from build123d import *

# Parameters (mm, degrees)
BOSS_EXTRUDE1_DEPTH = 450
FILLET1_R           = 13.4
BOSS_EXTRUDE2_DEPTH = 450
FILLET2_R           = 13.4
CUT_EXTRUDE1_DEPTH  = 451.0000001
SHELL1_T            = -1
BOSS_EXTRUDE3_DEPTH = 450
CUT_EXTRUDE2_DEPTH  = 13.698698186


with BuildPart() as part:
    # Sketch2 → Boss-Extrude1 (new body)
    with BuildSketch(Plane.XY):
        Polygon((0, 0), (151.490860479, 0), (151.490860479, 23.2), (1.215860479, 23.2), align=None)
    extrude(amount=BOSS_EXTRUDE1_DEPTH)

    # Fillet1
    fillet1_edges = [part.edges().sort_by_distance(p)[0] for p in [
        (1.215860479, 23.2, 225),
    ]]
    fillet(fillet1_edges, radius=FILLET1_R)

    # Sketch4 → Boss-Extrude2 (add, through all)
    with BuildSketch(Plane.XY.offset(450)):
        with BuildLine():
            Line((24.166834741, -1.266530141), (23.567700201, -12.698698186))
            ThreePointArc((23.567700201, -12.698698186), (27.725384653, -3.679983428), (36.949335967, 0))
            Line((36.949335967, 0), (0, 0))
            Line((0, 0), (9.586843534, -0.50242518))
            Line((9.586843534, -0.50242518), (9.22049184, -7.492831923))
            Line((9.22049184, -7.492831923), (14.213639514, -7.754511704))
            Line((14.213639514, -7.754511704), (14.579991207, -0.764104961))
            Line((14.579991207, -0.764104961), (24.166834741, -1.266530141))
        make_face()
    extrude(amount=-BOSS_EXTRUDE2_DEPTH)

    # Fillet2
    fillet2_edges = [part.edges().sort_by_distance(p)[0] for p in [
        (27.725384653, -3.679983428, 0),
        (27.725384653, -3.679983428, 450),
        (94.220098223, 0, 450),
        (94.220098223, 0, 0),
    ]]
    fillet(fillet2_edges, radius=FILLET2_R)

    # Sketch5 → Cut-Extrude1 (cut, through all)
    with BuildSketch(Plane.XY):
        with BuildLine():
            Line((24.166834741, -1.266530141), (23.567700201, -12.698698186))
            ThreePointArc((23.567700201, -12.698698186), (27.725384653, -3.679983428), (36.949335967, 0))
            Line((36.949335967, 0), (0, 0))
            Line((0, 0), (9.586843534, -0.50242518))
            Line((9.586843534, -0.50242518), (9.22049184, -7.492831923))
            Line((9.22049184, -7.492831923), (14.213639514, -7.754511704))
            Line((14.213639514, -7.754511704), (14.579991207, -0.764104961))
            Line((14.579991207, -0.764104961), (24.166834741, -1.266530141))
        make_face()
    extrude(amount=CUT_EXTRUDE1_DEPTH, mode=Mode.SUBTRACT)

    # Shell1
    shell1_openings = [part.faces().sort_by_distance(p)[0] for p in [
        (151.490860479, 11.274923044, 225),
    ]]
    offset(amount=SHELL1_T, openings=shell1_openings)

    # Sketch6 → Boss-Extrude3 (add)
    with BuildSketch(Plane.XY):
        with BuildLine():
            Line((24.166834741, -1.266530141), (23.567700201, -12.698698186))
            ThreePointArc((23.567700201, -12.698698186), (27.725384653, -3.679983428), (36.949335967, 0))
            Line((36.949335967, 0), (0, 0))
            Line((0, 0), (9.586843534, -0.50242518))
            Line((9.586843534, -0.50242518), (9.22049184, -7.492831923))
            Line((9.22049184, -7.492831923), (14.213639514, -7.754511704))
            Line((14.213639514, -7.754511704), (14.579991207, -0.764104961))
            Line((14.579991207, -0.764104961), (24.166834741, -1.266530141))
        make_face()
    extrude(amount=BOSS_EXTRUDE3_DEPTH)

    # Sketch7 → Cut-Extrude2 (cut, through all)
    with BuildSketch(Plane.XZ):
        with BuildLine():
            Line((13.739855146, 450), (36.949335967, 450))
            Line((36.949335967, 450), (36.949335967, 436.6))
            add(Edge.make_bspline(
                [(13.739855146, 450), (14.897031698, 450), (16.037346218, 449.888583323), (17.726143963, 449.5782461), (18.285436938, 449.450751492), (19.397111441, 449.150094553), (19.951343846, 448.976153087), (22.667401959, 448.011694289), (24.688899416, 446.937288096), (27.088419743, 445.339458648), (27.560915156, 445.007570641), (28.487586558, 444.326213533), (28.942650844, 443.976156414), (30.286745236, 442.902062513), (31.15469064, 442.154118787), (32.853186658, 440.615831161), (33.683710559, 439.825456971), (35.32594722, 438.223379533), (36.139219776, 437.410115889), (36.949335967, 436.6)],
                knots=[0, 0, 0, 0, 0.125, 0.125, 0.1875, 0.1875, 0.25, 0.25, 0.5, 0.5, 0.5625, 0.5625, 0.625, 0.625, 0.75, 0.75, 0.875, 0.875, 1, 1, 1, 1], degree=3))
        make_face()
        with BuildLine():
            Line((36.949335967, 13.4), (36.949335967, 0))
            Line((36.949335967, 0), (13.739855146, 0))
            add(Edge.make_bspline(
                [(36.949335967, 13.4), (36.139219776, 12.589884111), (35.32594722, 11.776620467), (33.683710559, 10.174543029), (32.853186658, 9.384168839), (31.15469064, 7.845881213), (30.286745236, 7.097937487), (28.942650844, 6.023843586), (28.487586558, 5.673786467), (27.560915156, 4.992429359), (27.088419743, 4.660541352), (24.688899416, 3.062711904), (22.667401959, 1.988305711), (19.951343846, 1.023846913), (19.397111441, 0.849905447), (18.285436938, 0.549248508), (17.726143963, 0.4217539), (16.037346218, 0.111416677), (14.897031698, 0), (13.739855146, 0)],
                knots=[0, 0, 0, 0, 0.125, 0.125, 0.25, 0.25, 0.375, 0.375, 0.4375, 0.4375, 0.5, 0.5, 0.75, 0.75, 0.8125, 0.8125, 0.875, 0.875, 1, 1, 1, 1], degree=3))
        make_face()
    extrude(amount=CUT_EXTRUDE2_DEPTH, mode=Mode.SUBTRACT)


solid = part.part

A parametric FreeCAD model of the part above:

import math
import FreeCAD as App
import Part
import Sketcher
from FreeCAD import Vector
Q = App.Units.Quantity


def edges_at(feature, points):
    """Names of the edges that pass closest to the given points."""
    edges = feature.Shape.Edges
    near = lambda p: min(range(len(edges)), key=lambda i: edges[i].distToShape(Part.Vertex(*p))[0])
    return sorted({f"Edge{near(p) + 1}" for p in points})


def faces_at(feature, points):
    """Names of the faces that lie closest to the given points."""
    faces = feature.Shape.Faces
    near = lambda p: min(range(len(faces)), key=lambda i: faces[i].distToShape(Part.Vertex(*p))[0])
    return sorted({f"Face{near(p) + 1}" for p in points})

doc = App.newDocument("Part")
body = doc.addObject("PartDesign::Body", "Body")

# Sketch on XY plane
sketch1 = doc.addObject("Sketcher::SketchObject", "Sketch")
body.addObject(sketch1)
sketch1.AttachmentSupport = (doc.XY_Plane, [""])
sketch1.MapMode = "FlatFace"
sketch1.addGeometry([
    Part.LineSegment(Vector(0, 0, 0), Vector(151, 0, 0)),
    Part.LineSegment(Vector(151, 0, 0), Vector(151, 23, 0)),
    Part.LineSegment(Vector(151, 23, 0), Vector(1, 23, 0)),
    Part.LineSegment(Vector(1, 23, 0), Vector(0, 0, 0)),
], False)
sketch1.addConstraint([
    Sketcher.Constraint("Coincident", 0, 2, 1, 1),
    Sketcher.Constraint("Coincident", 1, 2, 2, 1),
    Sketcher.Constraint("Coincident", 2, 2, 3, 1),
    Sketcher.Constraint("Coincident", 3, 2, 0, 1),
    Sketcher.Constraint("Horizontal", 0),
    Sketcher.Constraint("Vertical", 1),
    Sketcher.Constraint("Horizontal", 2),
    Sketcher.Constraint("Coincident", 3, 2, -1, 1),
    Sketcher.Constraint("Angle", 3, Q("-93 deg")),
    Sketcher.Constraint("DistanceY", 1, 1, 1, 2, 23.2),
    Sketcher.Constraint("DistanceX", 2, 2, 2, 1, 150.275),
])
pad1 = doc.addObject("PartDesign::Pad", "Pad")
body.addObject(pad1)
pad1.Profile = sketch1
pad1.Length = 450
doc.recompute()

fillet = doc.addObject("PartDesign::Fillet", "Fillet")
body.addObject(fillet)
fillet.Base = (pad1, edges_at(pad1, [(1.216, 23.2, 225)]))
fillet.Radius = 13.4

# Sketch on XY plane
sketch2 = doc.addObject("Sketcher::SketchObject", "Sketch001")
body.addObject(sketch2)
sketch2.AttachmentSupport = (doc.XY_Plane, [""])
sketch2.MapMode = "FlatFace"
sketch2.AttachmentOffset = App.Placement(Vector(0, 0, 450), App.Rotation())
sketch2.addGeometry([
    Part.LineSegment(Vector(24, -1, 0), Vector(24, -13, 0)),  # 0
    Part.ArcOfCircle(Part.Circle(Vector(37, -13, 0), Vector(0, 0, 1), 13), math.radians(90), math.radians(177)),  # 1
    Part.LineSegment(Vector(37, 0, 0), Vector(0, 0, 0)),  # 2
    Part.LineSegment(Vector(0, 0, 0), Vector(10, -1, 0)),  # 3
    Part.LineSegment(Vector(10, -1, 0), Vector(9, -7, 0)),  # 4
    Part.LineSegment(Vector(9, -7, 0), Vector(14, -8, 0)),  # 5
    Part.LineSegment(Vector(14, -8, 0), Vector(15, -1, 0)),  # 6
    Part.LineSegment(Vector(15, -1, 0), Vector(24, -1, 0)),  # 7
], False)
sketch2.addConstraint([
    Sketcher.Constraint("Tangent", 0, 2, 1, 2),
    Sketcher.Constraint("Tangent", 1, 1, 2, 1),
    Sketcher.Constraint("Coincident", 2, 2, 3, 1),
    Sketcher.Constraint("Coincident", 3, 2, 4, 1),
    Sketcher.Constraint("Coincident", 4, 2, 5, 1),
    Sketcher.Constraint("Coincident", 5, 2, 6, 1),
    Sketcher.Constraint("Coincident", 6, 2, 7, 1),
    Sketcher.Constraint("Coincident", 7, 2, 0, 1),
    Sketcher.Constraint("Horizontal", 2),
    Sketcher.Constraint("Coincident", 2, 2, -1, 1),
    Sketcher.Constraint("Perpendicular", 0, 3),
    Sketcher.Constraint("Perpendicular", 3, 4),
    Sketcher.Constraint("Perpendicular", 4, 5),
    Sketcher.Constraint("Perpendicular", 5, 6),
    Sketcher.Constraint("Perpendicular", 6, 7),
    Sketcher.Constraint("Equal", 4, 6),
    Sketcher.Constraint("Equal", 3, 7),
    Sketcher.Constraint("Radius", 1, 13.4),
    Sketcher.Constraint("Angle", 0, Q("-93 deg")),
    Sketcher.Constraint("Distance", 4, 7.0),
    Sketcher.Constraint("Distance", 5, 5.0),
    Sketcher.Constraint("Distance", 3, 9.6),
])
pad2 = doc.addObject("PartDesign::Pad", "Pad001")
body.addObject(pad2)
pad2.Profile = sketch2
pad2.Length = 450
pad2.Reversed = True
doc.recompute()

fillet2 = doc.addObject("PartDesign::Fillet", "Fillet001")
body.addObject(fillet2)
fillet2.Base = (pad2, edges_at(pad2, [
    (27.725, -3.68, 0),
    (27.725, -3.68, 450),
    (94.22, 0, 450),
    (94.22, 0, 0),
]))
fillet2.Radius = 13.4

# Sketch on XY plane
sketch3 = doc.addObject("Sketcher::SketchObject", "Sketch002")
body.addObject(sketch3)
sketch3.AttachmentSupport = (doc.XY_Plane, [""])
sketch3.MapMode = "FlatFace"
sketch3.addGeometry([
    Part.LineSegment(Vector(24, -1, 0), Vector(24, -13, 0)),  # 0
    Part.ArcOfCircle(Part.Circle(Vector(37, -13, 0), Vector(0, 0, 1), 13), math.radians(90), math.radians(177)),  # 1
    Part.LineSegment(Vector(37, 0, 0), Vector(0, 0, 0)),  # 2
    Part.LineSegment(Vector(0, 0, 0), Vector(10, -1, 0)),  # 3
    Part.LineSegment(Vector(10, -1, 0), Vector(9, -7, 0)),  # 4
    Part.LineSegment(Vector(9, -7, 0), Vector(14, -8, 0)),  # 5
    Part.LineSegment(Vector(14, -8, 0), Vector(15, -1, 0)),  # 6
    Part.LineSegment(Vector(15, -1, 0), Vector(24, -1, 0)),  # 7
], False)
sketch3.addConstraint([
    Sketcher.Constraint("Tangent", 0, 2, 1, 2),
    Sketcher.Constraint("Tangent", 1, 1, 2, 1),
    Sketcher.Constraint("Coincident", 2, 2, 3, 1),
    Sketcher.Constraint("Coincident", 3, 2, 4, 1),
    Sketcher.Constraint("Coincident", 4, 2, 5, 1),
    Sketcher.Constraint("Coincident", 5, 2, 6, 1),
    Sketcher.Constraint("Coincident", 6, 2, 7, 1),
    Sketcher.Constraint("Coincident", 7, 2, 0, 1),
    Sketcher.Constraint("Horizontal", 2),
    Sketcher.Constraint("Coincident", 2, 2, -1, 1),
    Sketcher.Constraint("Perpendicular", 0, 3),
    Sketcher.Constraint("Perpendicular", 3, 4),
    Sketcher.Constraint("Perpendicular", 4, 5),
    Sketcher.Constraint("Perpendicular", 5, 6),
    Sketcher.Constraint("Perpendicular", 6, 7),
    Sketcher.Constraint("Equal", 4, 6),
    Sketcher.Constraint("Equal", 3, 7),
    Sketcher.Constraint("Radius", 1, 13.4),
    Sketcher.Constraint("Angle", 0, Q("-93 deg")),
    Sketcher.Constraint("Distance", 4, 7.0),
    Sketcher.Constraint("Distance", 5, 5.0),
    Sketcher.Constraint("Distance", 3, 9.6),
])
pocket1 = doc.addObject("PartDesign::Pocket", "Pocket")
body.addObject(pocket1)
pocket1.Profile = sketch3
pocket1.Type = "ThroughAll"
pocket1.Reversed = True
doc.recompute()

thickness = doc.addObject("PartDesign::Thickness", "Thickness")
body.addObject(thickness)
thickness.Base = (pocket1, faces_at(pocket1, [(151.491, 11.6, 225)]))
thickness.Value = 1
thickness.Reversed = True
thickness.Join = "Arc"

# Sketch on XY plane
sketch4 = doc.addObject("Sketcher::SketchObject", "Sketch003")
body.addObject(sketch4)
sketch4.AttachmentSupport = (doc.XY_Plane, [""])
sketch4.MapMode = "FlatFace"
sketch4.addGeometry([
    Part.LineSegment(Vector(24, -1, 0), Vector(24, -13, 0)),  # 0
    Part.ArcOfCircle(Part.Circle(Vector(37, -13, 0), Vector(0, 0, 1), 13), math.radians(90), math.radians(177)),  # 1
    Part.LineSegment(Vector(37, 0, 0), Vector(0, 0, 0)),  # 2
    Part.LineSegment(Vector(0, 0, 0), Vector(10, -1, 0)),  # 3
    Part.LineSegment(Vector(10, -1, 0), Vector(9, -7, 0)),  # 4
    Part.LineSegment(Vector(9, -7, 0), Vector(14, -8, 0)),  # 5
    Part.LineSegment(Vector(14, -8, 0), Vector(15, -1, 0)),  # 6
    Part.LineSegment(Vector(15, -1, 0), Vector(24, -1, 0)),  # 7
], False)
sketch4.addConstraint([
    Sketcher.Constraint("Tangent", 0, 2, 1, 2),
    Sketcher.Constraint("Tangent", 1, 1, 2, 1),
    Sketcher.Constraint("Coincident", 2, 2, 3, 1),
    Sketcher.Constraint("Coincident", 3, 2, 4, 1),
    Sketcher.Constraint("Coincident", 4, 2, 5, 1),
    Sketcher.Constraint("Coincident", 5, 2, 6, 1),
    Sketcher.Constraint("Coincident", 6, 2, 7, 1),
    Sketcher.Constraint("Coincident", 7, 2, 0, 1),
    Sketcher.Constraint("Horizontal", 2),
    Sketcher.Constraint("Coincident", 2, 2, -1, 1),
    Sketcher.Constraint("Perpendicular", 0, 3),
    Sketcher.Constraint("Perpendicular", 3, 4),
    Sketcher.Constraint("Perpendicular", 4, 5),
    Sketcher.Constraint("Perpendicular", 5, 6),
    Sketcher.Constraint("Perpendicular", 6, 7),
    Sketcher.Constraint("Equal", 4, 6),
    Sketcher.Constraint("Equal", 3, 7),
    Sketcher.Constraint("Radius", 1, 13.4),
    Sketcher.Constraint("Angle", 0, Q("-93 deg")),
    Sketcher.Constraint("Distance", 4, 7.0),
    Sketcher.Constraint("Distance", 5, 5.0),
    Sketcher.Constraint("Distance", 3, 9.6),
])
pad3 = doc.addObject("PartDesign::Pad", "Pad002")
body.addObject(pad3)
pad3.Profile = sketch4
pad3.Length = 450

# Sketch on XZ plane
sketch5 = doc.addObject("Sketcher::SketchObject", "Sketch004")
body.addObject(sketch5)
sketch5.AttachmentSupport = (doc.XZ_Plane, [""])
sketch5.MapMode = "FlatFace"
sketch5.addGeometry([
    Part.LineSegment(Vector(36.949336, 450, 0), Vector(13.739855, 450, 0)),  # 0
    Part.BSplineCurve([Vector(13.739855, 450, 0), Vector(14.897032, 450, 0), Vector(16.037346, 449.888583, 0), Vector(17.726144, 449.578246, 0), Vector(18.285437, 449.450751, 0), Vector(19.397111, 449.150095, 0), Vector(19.951344, 448.976153, 0), Vector(22.667402, 448.011694, 0), Vector(24.688899, 446.937288, 0), Vector(27.08842, 445.339459, 0), Vector(27.560915, 445.007571, 0), Vector(28.487587, 444.326214, 0), Vector(28.942651, 443.976156, 0), Vector(30.286745, 442.902063, 0), Vector(31.154691, 442.154119, 0), Vector(32.853187, 440.615831, 0), Vector(33.683711, 439.825457, 0), Vector(35.325947, 438.22338, 0), Vector(36.13922, 437.410116, 0), Vector(36.949336, 436.6, 0)], [4, 2, 2, 2, 2, 2, 2, 2, 2, 4], [0, 0.125, 0.1875, 0.25, 0.5, 0.5625, 0.625, 0.75, 0.875, 1], False, 3, [1, 1, 1, 1, 1, 1, 1, 1, 1, 1, 1, 1, 1, 1, 1, 1, 1, 1, 1, 1], False),  # 1
    Part.LineSegment(Vector(36.949336, 436.6, 0), Vector(36.949336, 450, 0)),  # 2
    Part.LineSegment(Vector(36.949336, 0, 0), Vector(36.949336, 13.4, 0)),  # 3
    Part.BSplineCurve([Vector(36.949336, 13.4, 0), Vector(36.13922, 12.589884, 0), Vector(35.325947, 11.77662, 0), Vector(33.683711, 10.174543, 0), Vector(32.853187, 9.384169, 0), Vector(31.154691, 7.845881, 0), Vector(30.286745, 7.097937, 0), Vector(28.942651, 6.023844, 0), Vector(28.487587, 5.673786, 0), Vector(27.560915, 4.992429, 0), Vector(27.08842, 4.660541, 0), Vector(24.688899, 3.062712, 0), Vector(22.667402, 1.988306, 0), Vector(19.951344, 1.023847, 0), Vector(19.397111, 0.849905, 0), Vector(18.285437, 0.549249, 0), Vector(17.726144, 0.421754, 0), Vector(16.037346, 0.111417, 0), Vector(14.897032, 0, 0), Vector(13.739855, 0, 0)], [4, 2, 2, 2, 2, 2, 2, 2, 2, 4], [0, 0.125, 0.25, 0.375, 0.4375, 0.5, 0.75, 0.8125, 0.875, 1], False, 3, [1, 1, 1, 1, 1, 1, 1, 1, 1, 1, 1, 1, 1, 1, 1, 1, 1, 1, 1, 1], False),  # 4
    Part.LineSegment(Vector(13.739855, 0, 0), Vector(36.949336, 0, 0)),  # 5
], False)
sketch5.addConstraint([
    Sketcher.Constraint("Block", 1),
    Sketcher.Constraint("Block", 4),
    Sketcher.Constraint("Coincident", 0, 2, 1, 1),
    Sketcher.Constraint("Coincident", 1, 2, 2, 1),
    Sketcher.Constraint("Coincident", 2, 2, 0, 1),
    Sketcher.Constraint("Coincident", 3, 2, 4, 1),
    Sketcher.Constraint("Coincident", 4, 2, 5, 1),
    Sketcher.Constraint("Coincident", 5, 2, 3, 1),
    Sketcher.Constraint("Horizontal", 0),
    Sketcher.Constraint("Vertical", 2),
    Sketcher.Constraint("Vertical", 3),
    Sketcher.Constraint("Horizontal", 5),
])
pocket2 = doc.addObject("PartDesign::Pocket", "Pocket001")
body.addObject(pocket2)
pocket2.Profile = sketch5
pocket2.Type = "ThroughAll"
pocket2.Reversed = True

doc.recompute()
